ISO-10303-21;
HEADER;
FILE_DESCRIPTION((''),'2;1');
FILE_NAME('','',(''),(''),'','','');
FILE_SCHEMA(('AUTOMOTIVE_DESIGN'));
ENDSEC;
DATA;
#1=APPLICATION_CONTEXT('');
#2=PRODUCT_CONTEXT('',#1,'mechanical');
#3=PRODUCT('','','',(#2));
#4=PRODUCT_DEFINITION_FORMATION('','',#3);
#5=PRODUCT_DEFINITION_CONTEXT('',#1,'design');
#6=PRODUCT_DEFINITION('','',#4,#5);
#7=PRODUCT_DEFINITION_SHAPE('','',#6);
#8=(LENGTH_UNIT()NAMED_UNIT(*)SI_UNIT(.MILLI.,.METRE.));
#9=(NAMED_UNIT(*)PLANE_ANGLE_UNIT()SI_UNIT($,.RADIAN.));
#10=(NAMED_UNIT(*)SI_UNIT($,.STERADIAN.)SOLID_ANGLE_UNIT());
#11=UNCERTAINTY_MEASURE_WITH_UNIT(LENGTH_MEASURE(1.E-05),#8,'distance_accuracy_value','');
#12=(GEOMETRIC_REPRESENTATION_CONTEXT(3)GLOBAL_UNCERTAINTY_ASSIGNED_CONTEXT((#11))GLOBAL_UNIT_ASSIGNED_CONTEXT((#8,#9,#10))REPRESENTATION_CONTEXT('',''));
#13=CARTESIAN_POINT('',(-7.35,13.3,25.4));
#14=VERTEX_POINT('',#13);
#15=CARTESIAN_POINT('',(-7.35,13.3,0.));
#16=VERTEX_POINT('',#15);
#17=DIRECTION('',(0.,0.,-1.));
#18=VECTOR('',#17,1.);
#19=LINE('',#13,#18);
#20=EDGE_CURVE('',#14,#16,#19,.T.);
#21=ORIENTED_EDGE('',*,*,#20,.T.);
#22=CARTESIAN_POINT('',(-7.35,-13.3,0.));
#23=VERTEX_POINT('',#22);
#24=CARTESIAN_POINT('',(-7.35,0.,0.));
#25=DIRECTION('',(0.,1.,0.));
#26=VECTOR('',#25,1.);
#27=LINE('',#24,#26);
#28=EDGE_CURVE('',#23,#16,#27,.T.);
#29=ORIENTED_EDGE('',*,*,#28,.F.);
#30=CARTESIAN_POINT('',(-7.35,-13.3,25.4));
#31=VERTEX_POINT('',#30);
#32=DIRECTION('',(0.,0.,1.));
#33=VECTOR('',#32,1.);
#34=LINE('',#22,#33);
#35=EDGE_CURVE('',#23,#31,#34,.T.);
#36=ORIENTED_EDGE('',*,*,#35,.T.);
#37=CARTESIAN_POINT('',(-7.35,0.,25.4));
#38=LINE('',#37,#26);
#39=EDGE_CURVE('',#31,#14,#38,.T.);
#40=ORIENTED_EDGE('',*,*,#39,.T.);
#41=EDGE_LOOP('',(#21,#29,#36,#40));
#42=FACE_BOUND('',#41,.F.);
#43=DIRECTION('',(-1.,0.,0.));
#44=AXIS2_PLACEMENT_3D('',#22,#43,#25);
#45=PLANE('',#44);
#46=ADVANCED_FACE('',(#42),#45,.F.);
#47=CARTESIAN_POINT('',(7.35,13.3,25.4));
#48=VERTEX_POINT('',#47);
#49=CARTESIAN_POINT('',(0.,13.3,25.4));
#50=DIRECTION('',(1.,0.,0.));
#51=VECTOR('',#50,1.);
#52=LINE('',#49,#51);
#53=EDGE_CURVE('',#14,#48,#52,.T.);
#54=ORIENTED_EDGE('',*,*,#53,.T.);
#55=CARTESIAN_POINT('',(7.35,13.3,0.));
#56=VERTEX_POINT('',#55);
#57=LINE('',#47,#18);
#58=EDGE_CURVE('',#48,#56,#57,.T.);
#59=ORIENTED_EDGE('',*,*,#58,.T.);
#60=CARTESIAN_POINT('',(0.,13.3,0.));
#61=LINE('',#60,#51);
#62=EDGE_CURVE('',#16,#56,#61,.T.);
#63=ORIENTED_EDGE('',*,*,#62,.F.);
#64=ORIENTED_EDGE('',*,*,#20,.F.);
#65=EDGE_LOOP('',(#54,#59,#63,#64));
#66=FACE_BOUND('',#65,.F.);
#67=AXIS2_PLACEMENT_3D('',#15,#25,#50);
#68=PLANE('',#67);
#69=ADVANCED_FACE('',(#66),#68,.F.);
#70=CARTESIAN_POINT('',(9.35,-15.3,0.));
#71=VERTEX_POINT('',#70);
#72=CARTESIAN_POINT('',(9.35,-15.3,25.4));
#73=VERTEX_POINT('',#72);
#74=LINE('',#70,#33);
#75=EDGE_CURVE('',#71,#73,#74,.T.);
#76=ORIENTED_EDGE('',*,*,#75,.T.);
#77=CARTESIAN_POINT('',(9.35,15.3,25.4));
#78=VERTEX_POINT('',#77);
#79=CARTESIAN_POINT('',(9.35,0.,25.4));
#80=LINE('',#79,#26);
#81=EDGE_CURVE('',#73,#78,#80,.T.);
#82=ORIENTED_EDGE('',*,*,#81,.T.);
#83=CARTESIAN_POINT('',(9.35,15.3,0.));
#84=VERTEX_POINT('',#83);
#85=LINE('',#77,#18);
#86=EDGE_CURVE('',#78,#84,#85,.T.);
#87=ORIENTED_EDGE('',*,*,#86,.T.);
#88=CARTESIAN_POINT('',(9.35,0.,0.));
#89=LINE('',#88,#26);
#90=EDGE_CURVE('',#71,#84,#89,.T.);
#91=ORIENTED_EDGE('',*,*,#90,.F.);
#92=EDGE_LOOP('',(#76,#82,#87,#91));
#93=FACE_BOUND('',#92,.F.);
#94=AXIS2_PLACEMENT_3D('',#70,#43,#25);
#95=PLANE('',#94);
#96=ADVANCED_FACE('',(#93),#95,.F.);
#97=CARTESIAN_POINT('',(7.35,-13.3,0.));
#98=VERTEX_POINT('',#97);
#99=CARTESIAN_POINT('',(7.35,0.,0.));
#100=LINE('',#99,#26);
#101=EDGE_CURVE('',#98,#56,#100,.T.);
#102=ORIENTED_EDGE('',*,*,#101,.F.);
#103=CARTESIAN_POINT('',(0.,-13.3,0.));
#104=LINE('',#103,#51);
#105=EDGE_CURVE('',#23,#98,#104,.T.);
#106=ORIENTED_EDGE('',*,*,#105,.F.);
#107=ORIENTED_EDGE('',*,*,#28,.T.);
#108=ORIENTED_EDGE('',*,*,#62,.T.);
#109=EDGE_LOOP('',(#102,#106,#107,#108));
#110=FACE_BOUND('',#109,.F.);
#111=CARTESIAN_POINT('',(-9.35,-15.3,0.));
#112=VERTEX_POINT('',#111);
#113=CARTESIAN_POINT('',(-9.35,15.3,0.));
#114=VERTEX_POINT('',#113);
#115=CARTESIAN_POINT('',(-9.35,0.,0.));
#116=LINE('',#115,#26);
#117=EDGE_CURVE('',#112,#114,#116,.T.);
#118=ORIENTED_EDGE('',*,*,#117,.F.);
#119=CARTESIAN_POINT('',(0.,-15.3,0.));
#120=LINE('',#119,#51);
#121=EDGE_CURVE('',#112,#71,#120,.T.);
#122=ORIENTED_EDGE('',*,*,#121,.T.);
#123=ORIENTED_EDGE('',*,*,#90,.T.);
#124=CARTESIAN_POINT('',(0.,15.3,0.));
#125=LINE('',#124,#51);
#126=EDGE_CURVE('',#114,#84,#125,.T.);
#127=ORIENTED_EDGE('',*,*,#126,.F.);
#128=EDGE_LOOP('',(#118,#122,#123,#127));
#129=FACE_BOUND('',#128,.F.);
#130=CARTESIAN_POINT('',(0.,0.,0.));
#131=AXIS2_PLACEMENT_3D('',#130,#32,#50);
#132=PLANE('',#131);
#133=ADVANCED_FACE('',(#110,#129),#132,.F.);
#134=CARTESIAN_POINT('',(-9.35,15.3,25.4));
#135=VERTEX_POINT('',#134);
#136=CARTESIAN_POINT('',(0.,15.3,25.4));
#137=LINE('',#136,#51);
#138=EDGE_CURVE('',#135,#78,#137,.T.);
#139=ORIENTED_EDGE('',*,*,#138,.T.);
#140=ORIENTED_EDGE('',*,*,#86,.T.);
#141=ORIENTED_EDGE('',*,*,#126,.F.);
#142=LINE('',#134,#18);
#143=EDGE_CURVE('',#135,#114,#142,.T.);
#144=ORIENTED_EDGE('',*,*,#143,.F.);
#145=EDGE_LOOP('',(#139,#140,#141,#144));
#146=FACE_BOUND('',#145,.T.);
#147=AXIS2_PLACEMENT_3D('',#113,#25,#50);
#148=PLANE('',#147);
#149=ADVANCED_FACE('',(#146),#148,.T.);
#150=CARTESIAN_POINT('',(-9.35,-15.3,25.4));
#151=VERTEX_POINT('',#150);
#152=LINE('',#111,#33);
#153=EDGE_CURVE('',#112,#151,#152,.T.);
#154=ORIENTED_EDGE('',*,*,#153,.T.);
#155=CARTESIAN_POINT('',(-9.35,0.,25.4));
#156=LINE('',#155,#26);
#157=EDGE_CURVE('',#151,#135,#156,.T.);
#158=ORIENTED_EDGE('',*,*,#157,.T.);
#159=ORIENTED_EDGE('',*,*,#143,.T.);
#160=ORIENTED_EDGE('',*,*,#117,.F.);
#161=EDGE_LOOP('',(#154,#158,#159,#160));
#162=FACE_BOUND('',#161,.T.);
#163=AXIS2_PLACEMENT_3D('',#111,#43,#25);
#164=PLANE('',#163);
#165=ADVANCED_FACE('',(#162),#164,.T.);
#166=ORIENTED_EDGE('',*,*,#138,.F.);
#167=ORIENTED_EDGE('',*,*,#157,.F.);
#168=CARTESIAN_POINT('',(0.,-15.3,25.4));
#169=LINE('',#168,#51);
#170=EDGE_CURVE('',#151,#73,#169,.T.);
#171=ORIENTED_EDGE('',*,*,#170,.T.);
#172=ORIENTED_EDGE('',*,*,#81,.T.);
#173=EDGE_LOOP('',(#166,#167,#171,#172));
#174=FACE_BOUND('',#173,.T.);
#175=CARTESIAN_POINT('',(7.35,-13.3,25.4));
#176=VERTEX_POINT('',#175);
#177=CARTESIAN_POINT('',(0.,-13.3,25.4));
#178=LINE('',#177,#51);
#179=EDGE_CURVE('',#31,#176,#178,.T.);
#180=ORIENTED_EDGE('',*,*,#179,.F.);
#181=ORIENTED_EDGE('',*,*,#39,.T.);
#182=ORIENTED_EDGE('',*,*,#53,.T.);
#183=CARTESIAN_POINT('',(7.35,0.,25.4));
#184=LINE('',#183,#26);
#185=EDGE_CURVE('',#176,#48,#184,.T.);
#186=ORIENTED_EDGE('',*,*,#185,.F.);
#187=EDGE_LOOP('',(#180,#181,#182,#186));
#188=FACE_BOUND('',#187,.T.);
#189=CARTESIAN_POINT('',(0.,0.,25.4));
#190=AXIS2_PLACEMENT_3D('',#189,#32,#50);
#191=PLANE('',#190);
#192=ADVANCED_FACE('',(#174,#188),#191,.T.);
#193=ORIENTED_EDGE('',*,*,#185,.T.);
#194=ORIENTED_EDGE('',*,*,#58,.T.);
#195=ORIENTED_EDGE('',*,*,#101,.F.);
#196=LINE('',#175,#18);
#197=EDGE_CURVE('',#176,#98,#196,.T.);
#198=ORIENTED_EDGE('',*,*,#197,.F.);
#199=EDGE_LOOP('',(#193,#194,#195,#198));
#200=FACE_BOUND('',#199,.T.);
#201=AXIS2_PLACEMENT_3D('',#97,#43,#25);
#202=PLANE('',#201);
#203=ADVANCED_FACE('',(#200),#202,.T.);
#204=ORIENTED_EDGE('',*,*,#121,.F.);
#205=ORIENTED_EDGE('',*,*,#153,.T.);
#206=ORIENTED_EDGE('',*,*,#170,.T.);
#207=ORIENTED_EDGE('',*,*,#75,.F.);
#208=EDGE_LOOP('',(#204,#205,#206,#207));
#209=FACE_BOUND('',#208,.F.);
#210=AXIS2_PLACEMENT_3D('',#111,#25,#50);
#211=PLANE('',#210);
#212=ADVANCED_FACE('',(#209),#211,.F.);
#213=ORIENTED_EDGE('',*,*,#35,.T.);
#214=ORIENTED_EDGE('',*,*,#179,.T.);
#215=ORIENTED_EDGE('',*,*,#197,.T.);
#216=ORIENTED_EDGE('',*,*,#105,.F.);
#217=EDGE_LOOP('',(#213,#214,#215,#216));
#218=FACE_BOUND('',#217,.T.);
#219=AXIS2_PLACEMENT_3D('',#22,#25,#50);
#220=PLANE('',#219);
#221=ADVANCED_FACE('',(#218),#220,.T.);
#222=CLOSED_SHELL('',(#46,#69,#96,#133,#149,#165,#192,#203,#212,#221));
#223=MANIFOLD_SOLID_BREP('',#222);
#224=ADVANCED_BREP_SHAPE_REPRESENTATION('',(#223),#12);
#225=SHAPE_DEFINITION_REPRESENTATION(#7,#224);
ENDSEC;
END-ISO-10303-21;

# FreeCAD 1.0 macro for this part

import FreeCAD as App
import Part
import Sketcher

V = App.Vector
Q = App.Units.Quantity


def add_polygon(sketch, points):
    """Adds a closed chain of lines whose ends are joined by coincident constraints."""
    first, n = sketch.GeometryCount, len(points)
    for a, b in zip(points, points[1:] + points[:1]):
        sketch.addGeometry(Part.LineSegment(App.Vector(*a, 0), App.Vector(*b, 0)), False)
    for i in range(n):
        sketch.addConstraint(Sketcher.Constraint("Coincident", first + i, 2, first + (i + 1) % n, 1))

doc = App.newDocument("Part")
body = doc.addObject("PartDesign::Body", "Body")

# Sketch on XY plane
sketch1 = doc.addObject("Sketcher::SketchObject", "Sketch")
body.addObject(sketch1)
sketch1.AttachmentSupport = (doc.XY_Plane, [""])
sketch1.MapMode = "FlatFace"
add_polygon(sketch1, [(-9, 15), (-9, -15), (9, -15), (9, 15)])  # lines 0-3
add_polygon(sketch1, [(7, -13), (-7, -13), (-7, 13), (7, 13)])  # lines 4-7
sketch1.addConstraint([
    Sketcher.Constraint("Vertical", 0),
    Sketcher.Constraint("Horizontal", 1),
    Sketcher.Constraint("Vertical", 2),
    Sketcher.Constraint("Horizontal", 3),
    Sketcher.Constraint("Horizontal", 4),
    Sketcher.Constraint("Vertical", 5),
    Sketcher.Constraint("Horizontal", 6),
    Sketcher.Constraint("Vertical", 7),
    Sketcher.Constraint("Symmetric", 0, 2, 2, 2, -1, 1),
    Sketcher.Constraint("Symmetric", 4, 2, 6, 2, -1, 1),
    Sketcher.Constraint("DistanceX", 1, 1, 1, 2, Q("18.7 mm")),
    Sketcher.Constraint("DistanceX", 4, 2, 4, 1, Q("14.7 mm")),
    Sketcher.Constraint("DistanceY", 0, 2, 0, 1, Q("30.6 mm")),
    Sketcher.Constraint("DistanceY", 5, 1, 5, 2, Q("26.6 mm")),
])
pad1 = doc.addObject("PartDesign::Pad", "Pad")
body.addObject(pad1)
pad1.Profile = sketch1
pad1.Length = 25

# Sketch on XY plane
sketch2 = doc.addObject("Sketcher::SketchObject", "Sketch001")
body.addObject(sketch2)
sketch2.AttachmentSupport = (doc.XY_Plane, [""])
sketch2.MapMode = "FlatFace"
add_polygon(sketch2, [(-9, 15), (-9, -15), (9, -15), (9, 15)])  # lines 0-3
add_polygon(sketch2, [(7, -13), (-7, -13), (-7, 13), (7, 13)])  # lines 4-7
sketch2.addConstraint([
    Sketcher.Constraint("Vertical", 0),
    Sketcher.Constraint("Horizontal", 1),
    Sketcher.Constraint("Vertical", 2),
    Sketcher.Constraint("Horizontal", 3),
    Sketcher.Constraint("Horizontal", 4),
    Sketcher.Constraint("Vertical", 5),
    Sketcher.Constraint("Horizontal", 6),
    Sketcher.Constraint("Vertical", 7),
    Sketcher.Constraint("Symmetric", 0, 2, 2, 2, -1, 1),
    Sketcher.Constraint("Symmetric", 4, 2, 6, 2, -1, 1),
    Sketcher.Constraint("DistanceX", 1, 1, 1, 2, Q("18.7 mm")),
    Sketcher.Constraint("DistanceX", 4, 2, 4, 1, Q("14.7 mm")),
    Sketcher.Constraint("DistanceY", 0, 2, 0, 1, Q("30.6 mm")),
    Sketcher.Constraint("DistanceY", 5, 1, 5, 2, Q("26.6 mm")),
])
pad2 = doc.addObject("PartDesign::Pad", "Pad001")
body.addObject(pad2)
pad2.Profile = sketch2
pad2.Length = 25.4

doc.recompute()
